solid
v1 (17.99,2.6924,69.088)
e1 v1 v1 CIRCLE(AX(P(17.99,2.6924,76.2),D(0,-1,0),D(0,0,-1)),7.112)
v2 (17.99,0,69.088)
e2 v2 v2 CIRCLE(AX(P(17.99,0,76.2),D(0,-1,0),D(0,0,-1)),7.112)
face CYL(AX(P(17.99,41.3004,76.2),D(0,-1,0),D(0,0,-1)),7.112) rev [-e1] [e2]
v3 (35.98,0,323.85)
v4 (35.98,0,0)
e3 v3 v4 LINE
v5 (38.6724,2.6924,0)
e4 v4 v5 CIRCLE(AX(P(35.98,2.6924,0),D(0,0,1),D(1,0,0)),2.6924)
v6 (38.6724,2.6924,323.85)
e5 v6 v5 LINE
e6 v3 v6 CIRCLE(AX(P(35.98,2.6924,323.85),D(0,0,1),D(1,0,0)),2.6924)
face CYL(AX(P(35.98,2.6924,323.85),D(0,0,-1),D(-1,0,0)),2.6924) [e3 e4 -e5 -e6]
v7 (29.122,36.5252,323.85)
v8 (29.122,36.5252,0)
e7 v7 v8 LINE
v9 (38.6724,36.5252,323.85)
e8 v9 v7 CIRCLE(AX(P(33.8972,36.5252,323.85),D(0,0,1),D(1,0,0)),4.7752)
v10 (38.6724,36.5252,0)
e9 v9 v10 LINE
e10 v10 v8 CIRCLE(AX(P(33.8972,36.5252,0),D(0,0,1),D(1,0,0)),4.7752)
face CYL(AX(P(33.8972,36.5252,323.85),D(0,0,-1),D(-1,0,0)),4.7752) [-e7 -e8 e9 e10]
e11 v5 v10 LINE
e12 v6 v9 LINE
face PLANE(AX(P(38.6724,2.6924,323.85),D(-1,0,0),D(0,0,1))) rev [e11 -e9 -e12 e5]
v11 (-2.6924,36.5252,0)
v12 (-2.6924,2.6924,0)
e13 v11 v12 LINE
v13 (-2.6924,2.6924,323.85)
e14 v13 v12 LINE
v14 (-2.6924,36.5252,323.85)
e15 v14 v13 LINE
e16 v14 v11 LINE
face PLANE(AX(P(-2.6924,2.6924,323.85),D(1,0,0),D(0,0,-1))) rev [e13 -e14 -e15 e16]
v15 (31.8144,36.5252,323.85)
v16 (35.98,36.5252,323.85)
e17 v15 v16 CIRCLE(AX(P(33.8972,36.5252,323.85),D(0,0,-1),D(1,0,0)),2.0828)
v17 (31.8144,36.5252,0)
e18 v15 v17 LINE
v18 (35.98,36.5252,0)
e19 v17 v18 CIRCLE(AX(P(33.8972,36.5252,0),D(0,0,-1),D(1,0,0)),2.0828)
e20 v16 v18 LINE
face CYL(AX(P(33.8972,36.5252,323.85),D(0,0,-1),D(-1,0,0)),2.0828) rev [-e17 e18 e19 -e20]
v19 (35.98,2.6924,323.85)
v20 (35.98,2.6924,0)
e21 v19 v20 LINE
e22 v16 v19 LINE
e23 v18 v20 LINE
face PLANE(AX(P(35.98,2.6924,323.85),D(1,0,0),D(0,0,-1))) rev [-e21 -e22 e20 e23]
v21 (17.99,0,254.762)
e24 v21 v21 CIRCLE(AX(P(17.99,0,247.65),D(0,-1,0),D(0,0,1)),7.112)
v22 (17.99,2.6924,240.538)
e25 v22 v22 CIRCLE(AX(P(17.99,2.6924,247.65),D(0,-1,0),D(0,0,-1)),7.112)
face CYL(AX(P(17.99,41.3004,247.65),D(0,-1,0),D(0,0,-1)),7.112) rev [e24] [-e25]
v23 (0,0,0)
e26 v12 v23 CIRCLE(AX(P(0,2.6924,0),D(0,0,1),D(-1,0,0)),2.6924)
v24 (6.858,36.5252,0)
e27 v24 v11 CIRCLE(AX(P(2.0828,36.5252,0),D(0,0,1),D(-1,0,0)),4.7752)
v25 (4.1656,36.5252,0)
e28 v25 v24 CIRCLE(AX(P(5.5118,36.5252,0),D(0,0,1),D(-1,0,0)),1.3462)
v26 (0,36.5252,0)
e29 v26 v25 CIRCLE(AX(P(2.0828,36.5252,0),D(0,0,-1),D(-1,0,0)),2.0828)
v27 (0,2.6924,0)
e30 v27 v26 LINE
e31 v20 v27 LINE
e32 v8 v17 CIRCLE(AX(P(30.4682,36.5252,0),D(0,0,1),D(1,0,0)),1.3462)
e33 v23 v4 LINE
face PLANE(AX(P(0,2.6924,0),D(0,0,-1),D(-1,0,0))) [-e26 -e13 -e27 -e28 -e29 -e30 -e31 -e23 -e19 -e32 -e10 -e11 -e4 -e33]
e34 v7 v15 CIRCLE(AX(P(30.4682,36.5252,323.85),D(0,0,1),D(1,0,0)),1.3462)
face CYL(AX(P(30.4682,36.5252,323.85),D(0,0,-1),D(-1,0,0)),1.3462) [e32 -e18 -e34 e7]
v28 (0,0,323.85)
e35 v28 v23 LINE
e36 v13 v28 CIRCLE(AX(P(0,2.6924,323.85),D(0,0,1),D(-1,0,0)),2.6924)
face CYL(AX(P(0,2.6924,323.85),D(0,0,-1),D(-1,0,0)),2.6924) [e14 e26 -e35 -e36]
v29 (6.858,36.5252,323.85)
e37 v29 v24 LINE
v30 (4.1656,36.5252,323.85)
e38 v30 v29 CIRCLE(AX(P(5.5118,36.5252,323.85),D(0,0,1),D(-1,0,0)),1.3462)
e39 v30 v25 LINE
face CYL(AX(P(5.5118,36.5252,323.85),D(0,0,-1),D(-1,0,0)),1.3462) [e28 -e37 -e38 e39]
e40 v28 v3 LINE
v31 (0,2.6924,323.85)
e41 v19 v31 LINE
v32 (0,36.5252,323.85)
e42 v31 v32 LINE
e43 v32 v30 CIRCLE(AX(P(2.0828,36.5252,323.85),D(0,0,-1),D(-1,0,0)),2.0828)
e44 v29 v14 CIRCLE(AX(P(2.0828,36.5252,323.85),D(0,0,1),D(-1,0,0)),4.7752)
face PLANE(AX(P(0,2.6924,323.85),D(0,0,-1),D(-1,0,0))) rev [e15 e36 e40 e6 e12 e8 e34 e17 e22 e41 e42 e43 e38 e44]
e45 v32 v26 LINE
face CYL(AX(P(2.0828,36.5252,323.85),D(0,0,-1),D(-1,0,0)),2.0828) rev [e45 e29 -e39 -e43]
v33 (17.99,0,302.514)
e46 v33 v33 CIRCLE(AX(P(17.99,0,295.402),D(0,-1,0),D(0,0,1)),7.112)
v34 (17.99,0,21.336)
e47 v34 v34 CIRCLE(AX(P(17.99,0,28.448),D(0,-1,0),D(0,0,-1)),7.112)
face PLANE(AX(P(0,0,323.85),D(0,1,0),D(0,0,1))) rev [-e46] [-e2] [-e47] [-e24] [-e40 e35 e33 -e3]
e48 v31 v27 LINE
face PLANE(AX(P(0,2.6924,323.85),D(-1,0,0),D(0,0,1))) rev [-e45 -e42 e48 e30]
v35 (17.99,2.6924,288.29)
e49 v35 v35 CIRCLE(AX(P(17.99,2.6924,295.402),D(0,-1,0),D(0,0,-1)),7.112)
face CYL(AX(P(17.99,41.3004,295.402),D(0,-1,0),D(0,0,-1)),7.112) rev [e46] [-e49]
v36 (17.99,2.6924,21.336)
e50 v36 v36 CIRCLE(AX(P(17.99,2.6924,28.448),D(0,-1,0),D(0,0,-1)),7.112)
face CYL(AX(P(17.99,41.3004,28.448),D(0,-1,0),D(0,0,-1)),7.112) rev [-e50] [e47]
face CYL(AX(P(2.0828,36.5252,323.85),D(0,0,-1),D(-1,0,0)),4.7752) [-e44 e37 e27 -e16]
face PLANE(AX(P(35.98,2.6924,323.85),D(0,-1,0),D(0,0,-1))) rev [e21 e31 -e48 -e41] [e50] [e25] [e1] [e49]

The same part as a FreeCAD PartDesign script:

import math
import FreeCAD as App
import Part
import Sketcher
Q = App.Units.Quantity

doc = App.newDocument("Part")
body = doc.addObject("PartDesign::Body", "Body")

sketch1 = body.newObject("Sketcher::SketchObject", "Sketch")
sketch1.AttachmentSupport = (doc.getObject("XY_Plane"), [""])
sketch1.MapMode = "FlatFace"
sketch1.addGeometry([
    Part.LineSegment(App.Vector(0, 0, 0), App.Vector(36, 0, 0)),
    Part.ArcOfCircle(Part.Circle(App.Vector(36, 2.7, 0), App.Vector(0, 0, 1), 2.7), math.radians(-90), math.radians(0)),
    Part.LineSegment(App.Vector(38.7, 2.7, 0), App.Vector(38.7, 36.5, 0)),
    Part.ArcOfCircle(Part.Circle(App.Vector(33.9, 36.5, 0), App.Vector(0, 0, 1), 4.8), math.radians(0), math.radians(180)),
    Part.ArcOfCircle(Part.Circle(App.Vector(30.5, 36.5, 0), App.Vector(0, 0, 1), 1.3), math.radians(180), math.radians(360)),
    Part.ArcOfCircle(Part.Circle(App.Vector(33.9, 36.5, 0), App.Vector(0, 0, 1), 2.1), math.radians(0), math.radians(180)),
    Part.LineSegment(App.Vector(36, 36.5, 0), App.Vector(36, 2.7, 0)),
    Part.LineSegment(App.Vector(36, 2.7, 0), App.Vector(0, 2.7, 0)),
    Part.LineSegment(App.Vector(0, 2.7, 0), App.Vector(0, 36.5, 0)),
    Part.ArcOfCircle(Part.Circle(App.Vector(2.1, 36.5, 0), App.Vector(0, 0, 1), 2.1), math.radians(0), math.radians(180)),
    Part.ArcOfCircle(Part.Circle(App.Vector(5.5, 36.5, 0), App.Vector(0, 0, 1), 1.3), math.radians(180), math.radians(360)),
    Part.ArcOfCircle(Part.Circle(App.Vector(2.1, 36.5, 0), App.Vector(0, 0, 1), 4.8), math.radians(0), math.radians(180)),
    Part.LineSegment(App.Vector(-2.7, 36.5, 0), App.Vector(-2.7, 2.7, 0)),
    Part.ArcOfCircle(Part.Circle(App.Vector(0, 2.7, 0), App.Vector(0, 0, 1), 2.7), math.radians(180), math.radians(270)),
], False)
sketch1.addConstraint([
    Sketcher.Constraint("Tangent", 0, 2, 1, 1),
    Sketcher.Constraint("Tangent", 1, 2, 2, 1),
    Sketcher.Constraint("Tangent", 2, 2, 3, 1),
    Sketcher.Constraint("Tangent", 3, 2, 4, 1),
    Sketcher.Constraint("Tangent", 4, 2, 5, 2),
    Sketcher.Constraint("Tangent", 5, 1, 6, 1),
    Sketcher.Constraint("Coincident", 6, 2, 7, 1),
    Sketcher.Constraint("Coincident", 7, 2, 8, 1),
    Sketcher.Constraint("Tangent", 8, 2, 9, 2),
    Sketcher.Constraint("Tangent", 9, 1, 10, 1),
    Sketcher.Constraint("Tangent", 10, 2, 11, 1),
    Sketcher.Constraint("Tangent", 11, 2, 12, 1),
    Sketcher.Constraint("Tangent", 12, 2, 13, 1),
    Sketcher.Constraint("Tangent", 13, 2, 0, 1),
    Sketcher.Constraint("Horizontal", 0),
    Sketcher.Constraint("Vertical", 2),
    Sketcher.Constraint("Vertical", 6),
    Sketcher.Constraint("Horizontal", 7),
    Sketcher.Constraint("Vertical", 8),
    Sketcher.Constraint("Vertical", 12),
    Sketcher.Constraint("Coincident", 13, 2, -1, 1),
    Sketcher.Constraint("Coincident", 5, 3, 3, 3),
    Sketcher.Constraint("Coincident", 11, 3, 9, 3),
    Sketcher.Constraint("Coincident", 6, 2, 1, 3),
    Sketcher.Constraint("Coincident", 7, 2, 13, 3),
    Sketcher.Constraint("Equal", 5, 9),
    Sketcher.Constraint("Horizontal", 3, 3, 4, 3),
    Sketcher.Constraint("Horizontal", 5, 3, 9, 3),
    Sketcher.Constraint("Horizontal", 9, 3, 10, 3),
    Sketcher.Constraint("Radius", 1, Q("0.106 in")),
    Sketcher.Constraint("Radius", 3, Q("0.188 in")),
    Sketcher.Constraint("DistanceY", 2, 1, 2, 2, Q("1.332 in")),
    Sketcher.Constraint("DistanceX", 0, 1, 0, 2, Q("35.98 mm")),
])
pad1 = body.newObject("PartDesign::Pad", "Pad")
pad1.Profile = sketch1
pad1.Length = Q("12.75 in")

sketch2 = body.newObject("Sketcher::SketchObject", "Sketch001")
sketch2.AttachmentSupport = (doc.getObject("XZ_Plane"), [""])
sketch2.MapMode = "FlatFace"
sketch2.addGeometry([
    Part.Circle(App.Vector(18, 28, 0), App.Vector(0, 0, 1), 7),
    Part.Circle(App.Vector(18, 76, 0), App.Vector(0, 0, 1), 7),
    Part.Circle(App.Vector(18, 295, 0), App.Vector(0, 0, 1), 7),
    Part.Circle(App.Vector(18, 248, 0), App.Vector(0, 0, 1), 7),
], False)
sketch2.addConstraint([
    Sketcher.Constraint("Equal", 0, 1),
    Sketcher.Constraint("Equal", 1, 2),
    Sketcher.Constraint("Equal", 2, 3),
    Sketcher.Constraint("Vertical", 0, 3, 1, 3),
    Sketcher.Constraint("Vertical", 1, 3, 2, 3),
    Sketcher.Constraint("Vertical", 2, 3, 3, 3),
    Sketcher.Constraint("Diameter", 0, Q("0.56 in")),
    Sketcher.Constraint("DistanceY", -1, 1, 1, 3, Q("3 in")),
    Sketcher.Constraint("DistanceY", -1, 1, 0, 3, Q("1.12 in")),
    Sketcher.Constraint("DistanceY", -1, 1, 2, 3, Q("11.63 in")),
    Sketcher.Constraint("DistanceY", -1, 1, 3, 3, Q("9.75 in")),
    Sketcher.Constraint("DistanceX", -1, 1, 0, 3, Q("17.99 mm")),
])
pocket1 = body.newObject("PartDesign::Pocket", "Pocket")
pocket1.Profile = sketch2
pocket1.Type = "ThroughAll"

doc.recompute()
